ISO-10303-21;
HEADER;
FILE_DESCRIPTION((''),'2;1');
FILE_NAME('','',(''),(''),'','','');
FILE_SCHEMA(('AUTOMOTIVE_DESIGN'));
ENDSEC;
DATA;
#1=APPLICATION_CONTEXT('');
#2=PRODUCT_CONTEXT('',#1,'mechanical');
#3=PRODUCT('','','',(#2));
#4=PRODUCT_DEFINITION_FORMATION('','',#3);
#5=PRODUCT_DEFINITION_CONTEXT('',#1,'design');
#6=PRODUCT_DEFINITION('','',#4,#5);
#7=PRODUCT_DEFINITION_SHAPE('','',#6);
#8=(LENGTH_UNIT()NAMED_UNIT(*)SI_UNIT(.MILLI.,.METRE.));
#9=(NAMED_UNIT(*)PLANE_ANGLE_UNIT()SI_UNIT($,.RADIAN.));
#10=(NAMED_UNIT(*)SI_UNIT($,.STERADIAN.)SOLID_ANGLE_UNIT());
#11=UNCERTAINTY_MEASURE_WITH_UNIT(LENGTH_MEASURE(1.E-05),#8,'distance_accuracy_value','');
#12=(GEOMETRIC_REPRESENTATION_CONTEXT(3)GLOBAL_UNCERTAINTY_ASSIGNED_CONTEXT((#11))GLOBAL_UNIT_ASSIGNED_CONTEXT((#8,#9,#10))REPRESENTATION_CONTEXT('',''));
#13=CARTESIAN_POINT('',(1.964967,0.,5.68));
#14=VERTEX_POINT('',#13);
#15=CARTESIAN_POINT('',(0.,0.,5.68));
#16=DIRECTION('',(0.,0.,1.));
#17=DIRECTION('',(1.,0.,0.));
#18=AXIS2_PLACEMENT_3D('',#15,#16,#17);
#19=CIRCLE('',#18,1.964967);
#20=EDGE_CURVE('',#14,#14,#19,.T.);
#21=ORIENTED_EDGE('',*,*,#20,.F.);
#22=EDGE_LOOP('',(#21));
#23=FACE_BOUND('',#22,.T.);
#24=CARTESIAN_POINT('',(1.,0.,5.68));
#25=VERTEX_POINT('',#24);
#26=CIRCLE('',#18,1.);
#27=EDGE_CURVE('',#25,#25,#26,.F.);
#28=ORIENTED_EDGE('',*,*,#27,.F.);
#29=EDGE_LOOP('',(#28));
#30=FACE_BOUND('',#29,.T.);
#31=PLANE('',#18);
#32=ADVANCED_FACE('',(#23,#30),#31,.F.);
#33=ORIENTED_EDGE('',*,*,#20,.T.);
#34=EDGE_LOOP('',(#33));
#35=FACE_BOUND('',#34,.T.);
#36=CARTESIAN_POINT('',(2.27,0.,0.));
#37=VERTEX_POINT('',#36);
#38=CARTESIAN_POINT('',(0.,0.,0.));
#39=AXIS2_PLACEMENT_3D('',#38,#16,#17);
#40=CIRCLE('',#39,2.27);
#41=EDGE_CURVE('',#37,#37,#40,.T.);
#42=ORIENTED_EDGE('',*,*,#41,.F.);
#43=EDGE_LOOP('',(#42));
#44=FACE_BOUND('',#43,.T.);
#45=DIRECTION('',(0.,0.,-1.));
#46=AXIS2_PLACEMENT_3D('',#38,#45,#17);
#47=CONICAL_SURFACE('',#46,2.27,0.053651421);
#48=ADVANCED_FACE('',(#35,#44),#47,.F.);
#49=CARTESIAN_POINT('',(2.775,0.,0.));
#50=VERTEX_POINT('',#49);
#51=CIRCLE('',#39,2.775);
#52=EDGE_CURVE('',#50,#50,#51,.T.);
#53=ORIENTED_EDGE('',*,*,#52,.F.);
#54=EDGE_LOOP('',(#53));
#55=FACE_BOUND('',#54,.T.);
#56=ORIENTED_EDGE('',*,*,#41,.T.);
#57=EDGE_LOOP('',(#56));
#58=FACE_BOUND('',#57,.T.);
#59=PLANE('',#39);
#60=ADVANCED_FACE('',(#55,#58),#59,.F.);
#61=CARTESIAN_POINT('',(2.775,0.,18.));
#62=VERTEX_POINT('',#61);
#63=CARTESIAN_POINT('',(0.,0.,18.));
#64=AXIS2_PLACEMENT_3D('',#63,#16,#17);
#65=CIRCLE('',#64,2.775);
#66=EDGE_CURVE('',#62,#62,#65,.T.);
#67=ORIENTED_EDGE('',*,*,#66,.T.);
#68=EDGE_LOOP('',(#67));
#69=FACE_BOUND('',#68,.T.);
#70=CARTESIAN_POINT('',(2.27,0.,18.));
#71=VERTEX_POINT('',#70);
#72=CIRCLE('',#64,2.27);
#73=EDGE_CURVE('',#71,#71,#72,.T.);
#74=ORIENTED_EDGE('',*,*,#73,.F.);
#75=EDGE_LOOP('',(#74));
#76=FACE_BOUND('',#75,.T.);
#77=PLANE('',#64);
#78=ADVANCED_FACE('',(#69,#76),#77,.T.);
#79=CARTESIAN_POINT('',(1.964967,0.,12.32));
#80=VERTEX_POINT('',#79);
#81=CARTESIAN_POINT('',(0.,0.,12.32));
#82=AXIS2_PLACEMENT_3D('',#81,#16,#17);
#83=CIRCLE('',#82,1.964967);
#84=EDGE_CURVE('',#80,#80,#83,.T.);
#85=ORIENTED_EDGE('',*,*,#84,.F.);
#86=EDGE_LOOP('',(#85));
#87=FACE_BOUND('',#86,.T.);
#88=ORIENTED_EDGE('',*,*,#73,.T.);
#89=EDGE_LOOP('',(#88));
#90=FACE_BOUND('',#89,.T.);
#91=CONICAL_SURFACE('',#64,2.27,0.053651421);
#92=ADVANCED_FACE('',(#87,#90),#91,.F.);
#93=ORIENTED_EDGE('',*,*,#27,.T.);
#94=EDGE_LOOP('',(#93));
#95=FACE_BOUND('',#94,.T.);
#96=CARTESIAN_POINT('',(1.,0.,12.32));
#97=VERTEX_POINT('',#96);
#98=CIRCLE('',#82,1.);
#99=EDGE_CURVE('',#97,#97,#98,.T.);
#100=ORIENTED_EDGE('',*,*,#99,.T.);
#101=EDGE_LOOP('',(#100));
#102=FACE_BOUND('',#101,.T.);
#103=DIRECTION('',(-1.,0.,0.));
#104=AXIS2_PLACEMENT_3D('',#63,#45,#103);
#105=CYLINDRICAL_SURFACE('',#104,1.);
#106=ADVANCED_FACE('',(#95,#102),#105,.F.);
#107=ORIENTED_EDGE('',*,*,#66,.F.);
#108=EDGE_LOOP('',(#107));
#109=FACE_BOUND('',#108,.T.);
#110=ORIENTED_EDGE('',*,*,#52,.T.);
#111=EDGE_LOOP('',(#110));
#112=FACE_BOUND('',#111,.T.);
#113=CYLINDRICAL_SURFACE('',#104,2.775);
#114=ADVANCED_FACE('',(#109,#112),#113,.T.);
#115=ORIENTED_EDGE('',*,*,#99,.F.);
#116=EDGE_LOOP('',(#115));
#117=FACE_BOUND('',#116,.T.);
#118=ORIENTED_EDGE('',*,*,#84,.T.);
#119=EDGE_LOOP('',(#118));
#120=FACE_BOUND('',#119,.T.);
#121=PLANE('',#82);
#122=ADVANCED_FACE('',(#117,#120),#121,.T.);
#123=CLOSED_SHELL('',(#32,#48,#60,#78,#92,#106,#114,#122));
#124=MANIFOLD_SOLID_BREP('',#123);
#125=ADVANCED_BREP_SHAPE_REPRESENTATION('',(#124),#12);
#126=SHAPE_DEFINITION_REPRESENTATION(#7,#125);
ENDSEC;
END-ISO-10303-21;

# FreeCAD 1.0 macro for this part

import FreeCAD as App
import Part
import Sketcher

doc = App.newDocument("Part")
body = doc.addObject("PartDesign::Body", "Body")

# Sketch on XY plane
sketch1 = doc.addObject("Sketcher::SketchObject", "Sketch")
body.addObject(sketch1)
sketch1.AttachmentSupport = (doc.XY_Plane, [""])
sketch1.MapMode = "FlatFace"
sketch1.addGeometry(Part.Circle(App.Vector(0, 0, 0), App.Vector(0, 0, 1), 2.8), False)
sketch1.addConstraint([
    Sketcher.Constraint("Coincident", 0, 3, -1, 1),
    Sketcher.Constraint("Diameter", 0, 5.55),
])
pad1 = doc.addObject("PartDesign::Pad", "Pad")
body.addObject(pad1)
pad1.Profile = sketch1
pad1.Length = 18

# Sketch on XY plane
sketch2 = doc.addObject("Sketcher::SketchObject", "Sketch001")
body.addObject(sketch2)
sketch2.AttachmentSupport = (doc.XY_Plane, [""])
sketch2.MapMode = "FlatFace"
sketch2.addGeometry(Part.Circle(App.Vector(0, 0, 0), App.Vector(0, 0, 1), 2.3), False)
sketch2.addConstraint([
    Sketcher.Constraint("Coincident", 0, 3, -1, 1),
    Sketcher.Constraint("Diameter", 0, 4.54),
])
pocket1 = doc.addObject("PartDesign::Pocket", "Pocket")
body.addObject(pocket1)
pocket1.Profile = sketch2
pocket1.Length = 5.68
pocket1.Reversed = True
pocket1.TaperAngle = -3.074

# Sketch on XY plane
sketch3 = doc.addObject("Sketcher::SketchObject", "Sketch002")
body.addObject(sketch3)
sketch3.AttachmentSupport = (doc.XY_Plane, [""])
sketch3.MapMode = "FlatFace"
sketch3.addGeometry(Part.Circle(App.Vector(0, 0, 0), App.Vector(0, 0, 1), 1), False)
sketch3.addConstraint([
    Sketcher.Constraint("Coincident", 0, 3, -1, 1),
    Sketcher.Constraint("Diameter", 0, 2.0),
])
pocket2 = doc.addObject("PartDesign::Pocket", "Pocket001")
body.addObject(pocket2)
pocket2.Profile = sketch3
pocket2.Type = "ThroughAll"
pocket2.Reversed = True

# Sketch on XY plane
sketch4 = doc.addObject("Sketcher::SketchObject", "Sketch003")
body.addObject(sketch4)
sketch4.AttachmentSupport = (doc.XY_Plane, [""])
sketch4.MapMode = "FlatFace"
sketch4.AttachmentOffset = App.Placement(App.Vector(0, 0, 18), App.Rotation())
sketch4.addGeometry(Part.Circle(App.Vector(0, 0, 0), App.Vector(0, 0, 1), 2.3), False)
sketch4.addConstraint([
    Sketcher.Constraint("Coincident", 0, 3, -1, 1),
    Sketcher.Constraint("Diameter", 0, 4.54),
])
pocket3 = doc.addObject("PartDesign::Pocket", "Pocket002")
body.addObject(pocket3)
pocket3.Profile = sketch4
pocket3.Length = 5.68
pocket3.TaperAngle = -3.074

doc.recompute()
